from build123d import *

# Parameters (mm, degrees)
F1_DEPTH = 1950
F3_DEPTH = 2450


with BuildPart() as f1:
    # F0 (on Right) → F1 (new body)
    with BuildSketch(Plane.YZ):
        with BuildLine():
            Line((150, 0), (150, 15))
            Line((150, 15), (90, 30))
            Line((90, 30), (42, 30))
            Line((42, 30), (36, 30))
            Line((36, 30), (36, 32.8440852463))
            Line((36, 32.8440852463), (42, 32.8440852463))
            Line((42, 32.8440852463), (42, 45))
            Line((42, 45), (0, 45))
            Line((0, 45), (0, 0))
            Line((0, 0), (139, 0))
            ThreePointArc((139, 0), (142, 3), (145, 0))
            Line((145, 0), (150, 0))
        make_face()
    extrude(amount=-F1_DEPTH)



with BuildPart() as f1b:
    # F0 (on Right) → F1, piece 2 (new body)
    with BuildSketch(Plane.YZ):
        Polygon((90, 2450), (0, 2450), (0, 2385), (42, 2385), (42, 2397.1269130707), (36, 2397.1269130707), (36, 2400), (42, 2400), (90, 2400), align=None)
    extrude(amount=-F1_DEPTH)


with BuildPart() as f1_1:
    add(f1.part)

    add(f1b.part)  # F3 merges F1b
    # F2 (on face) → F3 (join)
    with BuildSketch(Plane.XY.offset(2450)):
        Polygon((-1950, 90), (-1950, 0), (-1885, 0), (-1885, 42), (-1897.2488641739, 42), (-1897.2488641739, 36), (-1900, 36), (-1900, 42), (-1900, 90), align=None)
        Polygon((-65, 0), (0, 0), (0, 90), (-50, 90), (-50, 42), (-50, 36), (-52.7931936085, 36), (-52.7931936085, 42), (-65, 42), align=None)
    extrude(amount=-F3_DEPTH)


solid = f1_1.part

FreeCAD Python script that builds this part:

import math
import FreeCAD as App
import Part
import Sketcher
from FreeCAD import Vector

doc = App.newDocument("Part")
body = doc.addObject("PartDesign::Body", "Body")

sketch1 = body.newObject("Sketcher::SketchObject", "Sketch")
sketch1.AttachmentSupport = (doc.getObject("YZ_Plane"), [""])
sketch1.MapMode = "FlatFace"
sketch1.addGeometry(Part.LineSegment(Vector(150, 0, 0), Vector(150, 15, 0)), False)
sketch1.addGeometry(Part.LineSegment(Vector(150, 15, 0), Vector(90, 30, 0)), False)
sketch1.addGeometry(Part.LineSegment(Vector(90, 30, 0), Vector(36, 30, 0)), False)
sketch1.addGeometry(Part.LineSegment(Vector(36, 30, 0), Vector(36, 32.8, 0)), False)
sketch1.addGeometry(Part.LineSegment(Vector(36, 32.8, 0), Vector(42, 32.8, 0)), False)
sketch1.addGeometry(Part.LineSegment(Vector(42, 32.8, 0), Vector(42, 45, 0)), False)
sketch1.addGeometry(Part.LineSegment(Vector(42, 45, 0), Vector(0, 45, 0)), False)
sketch1.addGeometry(Part.LineSegment(Vector(0, 45, 0), Vector(0, 0, 0)), False)
sketch1.addGeometry(Part.LineSegment(Vector(0, 0, 0), Vector(139, 0, 0)), False)
sketch1.addGeometry(Part.ArcOfCircle(Part.Circle(Vector(142, 0, 0), Vector(0, 0, 1), 3), math.radians(0), math.radians(180)), False)
sketch1.addGeometry(Part.LineSegment(Vector(145, 0, 0), Vector(150, 0, 0)), False)
sketch1.addConstraint(Sketcher.Constraint("Coincident", 0, 2, 1, 1))
sketch1.addConstraint(Sketcher.Constraint("Coincident", 1, 2, 2, 1))
sketch1.addConstraint(Sketcher.Constraint("Coincident", 2, 2, 3, 1))
sketch1.addConstraint(Sketcher.Constraint("Coincident", 3, 2, 4, 1))
sketch1.addConstraint(Sketcher.Constraint("Coincident", 4, 2, 5, 1))
sketch1.addConstraint(Sketcher.Constraint("Coincident", 5, 2, 6, 1))
sketch1.addConstraint(Sketcher.Constraint("Coincident", 6, 2, 7, 1))
sketch1.addConstraint(Sketcher.Constraint("Coincident", 7, 2, 8, 1))
sketch1.addConstraint(Sketcher.Constraint("Coincident", 8, 2, 9, 2))
sketch1.addConstraint(Sketcher.Constraint("Coincident", 9, 1, 10, 1))
sketch1.addConstraint(Sketcher.Constraint("Coincident", 10, 2, 0, 1))
sketch1.addConstraint(Sketcher.Constraint("Vertical", 0))
sketch1.addConstraint(Sketcher.Constraint("Horizontal", 2))
sketch1.addConstraint(Sketcher.Constraint("Vertical", 3))
sketch1.addConstraint(Sketcher.Constraint("Horizontal", 4))
sketch1.addConstraint(Sketcher.Constraint("Vertical", 5))
sketch1.addConstraint(Sketcher.Constraint("Horizontal", 6))
sketch1.addConstraint(Sketcher.Constraint("Vertical", 7))
sketch1.addConstraint(Sketcher.Constraint("Horizontal", 8))
sketch1.addConstraint(Sketcher.Constraint("Horizontal", 10))
sketch1.addConstraint(Sketcher.Constraint("Coincident", 7, 2, -1, 1))
sketch1.addConstraint(Sketcher.Constraint("PointOnObject", 9, 3, -1))
sketch1.addConstraint(Sketcher.Constraint("PointOnObject", 9, 1, -1))
sketch1.addConstraint(Sketcher.Constraint("Radius", 9, 3.0))
sketch1.addConstraint(Sketcher.Constraint("DistanceX", 2, 2, 2, 1, 54.0))
sketch1.addConstraint(Sketcher.Constraint("DistanceX", 4, 1, 4, 2, 6.0))
sketch1.addConstraint(Sketcher.Constraint("DistanceX", 6, 2, 6, 1, 42.0))
sketch1.addConstraint(Sketcher.Constraint("DistanceX", 8, 1, 8, 2, 139.0))
sketch1.addConstraint(Sketcher.Constraint("DistanceX", 10, 1, 10, 2, 5.0))
sketch1.addConstraint(Sketcher.Constraint("DistanceY", 0, 1, 0, 2, 15.0))
sketch1.addConstraint(Sketcher.Constraint("DistanceY", 7, 2, 7, 1, 45.0))
sketch1.addConstraint(Sketcher.Constraint("DistanceY", -1, 1, 1, 2, 30.0))
sketch1.addConstraint(Sketcher.Constraint("DistanceY", 3, 1, 3, 2, 2.844085))
pad1 = body.newObject("PartDesign::Pad", "Pad")
pad1.Profile = sketch1
pad1.Length = 1950
pad1.Reversed = True
body2 = doc.addObject("PartDesign::Body", "Body001")

sketch2 = body2.newObject("Sketcher::SketchObject", "Sketch001")
sketch2.AttachmentSupport = (doc.getObject("YZ_Plane001"), [""])
sketch2.MapMode = "FlatFace"
sketch2.addGeometry(Part.LineSegment(Vector(90, 2450, 0), Vector(0, 2450, 0)), False)
sketch2.addGeometry(Part.LineSegment(Vector(0, 2450, 0), Vector(0, 2385, 0)), False)
sketch2.addGeometry(Part.LineSegment(Vector(0, 2385, 0), Vector(42, 2385, 0)), False)
sketch2.addGeometry(Part.LineSegment(Vector(42, 2385, 0), Vector(42, 2397.1, 0)), False)
sketch2.addGeometry(Part.LineSegment(Vector(42, 2397.1, 0), Vector(36, 2397.1, 0)), False)
sketch2.addGeometry(Part.LineSegment(Vector(36, 2397.1, 0), Vector(36, 2400, 0)), False)
sketch2.addGeometry(Part.LineSegment(Vector(36, 2400, 0), Vector(90, 2400, 0)), False)
sketch2.addGeometry(Part.LineSegment(Vector(90, 2400, 0), Vector(90, 2450, 0)), False)
sketch2.addConstraint(Sketcher.Constraint("Coincident", 0, 2, 1, 1))
sketch2.addConstraint(Sketcher.Constraint("Coincident", 1, 2, 2, 1))
sketch2.addConstraint(Sketcher.Constraint("Coincident", 2, 2, 3, 1))
sketch2.addConstraint(Sketcher.Constraint("Coincident", 3, 2, 4, 1))
sketch2.addConstraint(Sketcher.Constraint("Coincident", 4, 2, 5, 1))
sketch2.addConstraint(Sketcher.Constraint("Coincident", 5, 2, 6, 1))
sketch2.addConstraint(Sketcher.Constraint("Coincident", 6, 2, 7, 1))
sketch2.addConstraint(Sketcher.Constraint("Coincident", 7, 2, 0, 1))
sketch2.addConstraint(Sketcher.Constraint("Horizontal", 0))
sketch2.addConstraint(Sketcher.Constraint("Vertical", 1))
sketch2.addConstraint(Sketcher.Constraint("Horizontal", 2))
sketch2.addConstraint(Sketcher.Constraint("Vertical", 3))
sketch2.addConstraint(Sketcher.Constraint("Horizontal", 4))
sketch2.addConstraint(Sketcher.Constraint("Vertical", 5))
sketch2.addConstraint(Sketcher.Constraint("Horizontal", 6))
sketch2.addConstraint(Sketcher.Constraint("Vertical", 7))
sketch2.addConstraint(Sketcher.Constraint("PointOnObject", 0, 2, -2))
sketch2.addConstraint(Sketcher.Constraint("DistanceX", 0, 2, 0, 1, 90.0))
sketch2.addConstraint(Sketcher.Constraint("DistanceX", 2, 1, 2, 2, 42.0))
sketch2.addConstraint(Sketcher.Constraint("DistanceX", 4, 2, 4, 1, 6.0))
sketch2.addConstraint(Sketcher.Constraint("DistanceY", 1, 2, 1, 1, 65.0))
sketch2.addConstraint(Sketcher.Constraint("DistanceY", 7, 1, 7, 2, 50.0))
sketch2.addConstraint(Sketcher.Constraint("DistanceY", -1, 1, 0, 2, 2450.0))
sketch2.addConstraint(Sketcher.Constraint("DistanceY", 3, 1, 3, 2, 12.126913))
pad2 = body2.newObject("PartDesign::Pad", "Pad001")
pad2.Profile = sketch2
pad2.Length = 1950
pad2.Reversed = True
body.AllowCompound = True
doc.recompute()

boolean = body.newObject("PartDesign::Boolean", "Boolean")
boolean.Type = "Fuse"
boolean.addObjects([body2])

sketch3 = body.newObject("Sketcher::SketchObject", "Sketch002")
sketch3.AttachmentSupport = (doc.getObject("XY_Plane"), [""])
sketch3.MapMode = "FlatFace"
sketch3.AttachmentOffset = App.Placement(Vector(0, 0, 2450), App.Rotation())
sketch3.addGeometry(Part.LineSegment(Vector(-1950, 90, 0), Vector(-1950, 0, 0)), False)
sketch3.addGeometry(Part.LineSegment(Vector(-1950, 0, 0), Vector(-1885, 0, 0)), False)
sketch3.addGeometry(Part.LineSegment(Vector(-1885, 0, 0), Vector(-1885, 42, 0)), False)
sketch3.addGeometry(Part.LineSegment(Vector(-1885, 42, 0), Vector(-1897.2, 42, 0)), False)
sketch3.addGeometry(Part.LineSegment(Vector(-1897.2, 42, 0), Vector(-1897.2, 36, 0)), False)
sketch3.addGeometry(Part.LineSegment(Vector(-1897.2, 36, 0), Vector(-1900, 36, 0)), False)
sketch3.addGeometry(Part.LineSegment(Vector(-1900, 36, 0), Vector(-1900, 90, 0)), False)
sketch3.addGeometry(Part.LineSegment(Vector(-1900, 90, 0), Vector(-1950, 90, 0)), False)
sketch3.addGeometry(Part.LineSegment(Vector(-65, 0, 0), Vector(0, 0, 0)), False)
sketch3.addGeometry(Part.LineSegment(Vector(0, 0, 0), Vector(0, 90, 0)), False)
sketch3.addGeometry(Part.LineSegment(Vector(0, 90, 0), Vector(-50, 90, 0)), False)
sketch3.addGeometry(Part.LineSegment(Vector(-50, 90, 0), Vector(-50, 36, 0)), False)
sketch3.addGeometry(Part.LineSegment(Vector(-50, 36, 0), Vector(-52.8, 36, 0)), False)
sketch3.addGeometry(Part.LineSegment(Vector(-52.8, 36, 0), Vector(-52.8, 42, 0)), False)
sketch3.addGeometry(Part.LineSegment(Vector(-52.8, 42, 0), Vector(-65, 42, 0)), False)
sketch3.addGeometry(Part.LineSegment(Vector(-65, 42, 0), Vector(-65, 0, 0)), False)
sketch3.addConstraint(Sketcher.Constraint("Coincident", 0, 2, 1, 1))
sketch3.addConstraint(Sketcher.Constraint("Coincident", 1, 2, 2, 1))
sketch3.addConstraint(Sketcher.Constraint("Coincident", 2, 2, 3, 1))
sketch3.addConstraint(Sketcher.Constraint("Coincident", 3, 2, 4, 1))
sketch3.addConstraint(Sketcher.Constraint("Coincident", 4, 2, 5, 1))
sketch3.addConstraint(Sketcher.Constraint("Coincident", 5, 2, 6, 1))
sketch3.addConstraint(Sketcher.Constraint("Coincident", 6, 2, 7, 1))
sketch3.addConstraint(Sketcher.Constraint("Coincident", 7, 2, 0, 1))
sketch3.addConstraint(Sketcher.Constraint("Coincident", 8, 2, 9, 1))
sketch3.addConstraint(Sketcher.Constraint("Coincident", 9, 2, 10, 1))
sketch3.addConstraint(Sketcher.Constraint("Coincident", 10, 2, 11, 1))
sketch3.addConstraint(Sketcher.Constraint("Coincident", 11, 2, 12, 1))
sketch3.addConstraint(Sketcher.Constraint("Coincident", 12, 2, 13, 1))
sketch3.addConstraint(Sketcher.Constraint("Coincident", 13, 2, 14, 1))
sketch3.addConstraint(Sketcher.Constraint("Coincident", 14, 2, 15, 1))
sketch3.addConstraint(Sketcher.Constraint("Coincident", 15, 2, 8, 1))
sketch3.addConstraint(Sketcher.Constraint("Vertical", 0))
sketch3.addConstraint(Sketcher.Constraint("Horizontal", 1))
sketch3.addConstraint(Sketcher.Constraint("Vertical", 2))
sketch3.addConstraint(Sketcher.Constraint("Horizontal", 3))
sketch3.addConstraint(Sketcher.Constraint("Vertical", 4))
sketch3.addConstraint(Sketcher.Constraint("Horizontal", 5))
sketch3.addConstraint(Sketcher.Constraint("Vertical", 6))
sketch3.addConstraint(Sketcher.Constraint("Horizontal", 7))
sketch3.addConstraint(Sketcher.Constraint("Horizontal", 8))
sketch3.addConstraint(Sketcher.Constraint("Vertical", 9))
sketch3.addConstraint(Sketcher.Constraint("Horizontal", 10))
sketch3.addConstraint(Sketcher.Constraint("Vertical", 11))
sketch3.addConstraint(Sketcher.Constraint("Horizontal", 12))
sketch3.addConstraint(Sketcher.Constraint("Vertical", 13))
sketch3.addConstraint(Sketcher.Constraint("Horizontal", 14))
sketch3.addConstraint(Sketcher.Constraint("Vertical", 15))
sketch3.addConstraint(Sketcher.Constraint("Coincident", 8, 2, -1, 1))
sketch3.addConstraint(Sketcher.Constraint("PointOnObject", 0, 2, -1))
sketch3.addConstraint(Sketcher.Constraint("Horizontal", 7, 2, 9, 2))
sketch3.addConstraint(Sketcher.Constraint("Horizontal", 5, 2, 11, 2))
sketch3.addConstraint(Sketcher.Constraint("Horizontal", 3, 2, 13, 2))
sketch3.addConstraint(Sketcher.Constraint("Equal", 1, 8))
sketch3.addConstraint(Sketcher.Constraint("Equal", 7, 10))
sketch3.addConstraint(Sketcher.Constraint("DistanceX", 1, 1, 1, 2, 65.0))
sketch3.addConstraint(Sketcher.Constraint("DistanceX", 7, 2, 7, 1, 50.0))
sketch3.addConstraint(Sketcher.Constraint("DistanceY", 0, 2, 0, 1, 90.0))
sketch3.addConstraint(Sketcher.Constraint("DistanceY", 2, 1, 2, 2, 42.0))
sketch3.addConstraint(Sketcher.Constraint("DistanceY", 4, 2, 4, 1, 6.0))
sketch3.addConstraint(Sketcher.Constraint("DistanceX", 0, 2, -1, 1, 1950.0))
sketch3.addConstraint(Sketcher.Constraint("DistanceX", 3, 2, 3, 1, 12.248864))
sketch3.addConstraint(Sketcher.Constraint("DistanceX", 12, 2, 12, 1, 2.793194))
pad3 = body.newObject("PartDesign::Pad", "Pad002")
pad3.Profile = sketch3
pad3.Length = 2450
pad3.Reversed = True

doc.recompute()
